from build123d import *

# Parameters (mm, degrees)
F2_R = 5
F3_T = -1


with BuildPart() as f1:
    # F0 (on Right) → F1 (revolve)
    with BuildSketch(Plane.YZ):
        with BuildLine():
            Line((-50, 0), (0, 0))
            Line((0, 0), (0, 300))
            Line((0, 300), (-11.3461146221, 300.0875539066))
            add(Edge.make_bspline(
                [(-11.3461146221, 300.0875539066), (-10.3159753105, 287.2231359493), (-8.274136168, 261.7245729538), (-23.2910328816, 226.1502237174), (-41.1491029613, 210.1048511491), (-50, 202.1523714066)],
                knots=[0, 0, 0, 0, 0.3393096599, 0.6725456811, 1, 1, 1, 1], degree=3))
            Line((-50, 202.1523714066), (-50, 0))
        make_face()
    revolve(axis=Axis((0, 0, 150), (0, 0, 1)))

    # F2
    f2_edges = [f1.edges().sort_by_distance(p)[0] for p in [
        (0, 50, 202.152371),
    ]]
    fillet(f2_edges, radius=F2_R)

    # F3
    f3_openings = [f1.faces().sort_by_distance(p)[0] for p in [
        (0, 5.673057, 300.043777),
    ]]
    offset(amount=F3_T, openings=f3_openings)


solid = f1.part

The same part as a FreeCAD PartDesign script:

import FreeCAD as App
import Part
import Sketcher
Q = App.Units.Quantity


def edges_at(feature, points):
    """Names of the edges that pass closest to the given points."""
    edges = feature.Shape.Edges
    near = lambda p: min(range(len(edges)), key=lambda i: edges[i].distToShape(Part.Vertex(*p))[0])
    return sorted({f"Edge{near(p) + 1}" for p in points})


def faces_at(feature, points):
    """Names of the faces that lie closest to the given points."""
    faces = feature.Shape.Faces
    near = lambda p: min(range(len(faces)), key=lambda i: faces[i].distToShape(Part.Vertex(*p))[0])
    return sorted({f"Face{near(p) + 1}" for p in points})

doc = App.newDocument("Part")
body = doc.addObject("PartDesign::Body", "Body")

# Sketch on YZ plane
sketch1 = body.newObject("Sketcher::SketchObject", "Sketch")
sketch1.AttachmentSupport = (doc.getObject("YZ_Plane"), [""])
sketch1.MapMode = "FlatFace"
sketch1.addGeometry(Part.LineSegment(App.Vector(-50, 0, 0), App.Vector(0, 0, 0)), False)
sketch1.addGeometry(Part.LineSegment(App.Vector(0, 0, 0), App.Vector(0, 300, 0)), False)
sketch1.addGeometry(Part.LineSegment(App.Vector(0, 300, 0), App.Vector(-11.346115, 300.087554, 0)), False)
sketch1.addGeometry(Part.BSplineCurve([App.Vector(-11.346115, 300.087554, 0), App.Vector(-10.315975, 287.223136, 0), App.Vector(-8.274136, 261.724573, 0), App.Vector(-23.291033, 226.150224, 0), App.Vector(-41.149103, 210.104851, 0), App.Vector(-50, 202.152371, 0)], [4, 1, 1, 4], [0, 0.33930966, 0.672545681, 1], False, 3, [1, 1, 1, 1, 1, 1], False), False)
sketch1.addGeometry(Part.LineSegment(App.Vector(-50, 202.152371, 0), App.Vector(-50, 0, 0)), False)
sketch1.addConstraint(Sketcher.Constraint("Block", 3))
sketch1.addConstraint(Sketcher.Constraint("Coincident", 0, 2, 1, 1))
sketch1.addConstraint(Sketcher.Constraint("Coincident", 1, 2, 2, 1))
sketch1.addConstraint(Sketcher.Constraint("Coincident", 2, 2, 3, 1))
sketch1.addConstraint(Sketcher.Constraint("Coincident", 3, 2, 4, 1))
sketch1.addConstraint(Sketcher.Constraint("Coincident", 4, 2, 0, 1))
sketch1.addConstraint(Sketcher.Constraint("Horizontal", 0))
sketch1.addConstraint(Sketcher.Constraint("Vertical", 1))
sketch1.addConstraint(Sketcher.Constraint("Vertical", 4))
sketch1.addConstraint(Sketcher.Constraint("Coincident", 0, 2, -1, 1))
sketch1.addConstraint(Sketcher.Constraint("DistanceY", 1, 1, 1, 2, Q("300 mm")))
revolution = body.newObject("PartDesign::Revolution", "Revolution")
revolution.Profile = sketch1
revolution.ReferenceAxis = (sketch1, ["V_Axis"])
revolution.Angle = 360
doc.recompute()

fillet = body.newObject("PartDesign::Fillet", "Fillet")
fillet.Base = (revolution, edges_at(revolution, [(0, 50, 202.152)]))
fillet.Radius = 5
doc.recompute()

thickness = body.newObject("PartDesign::Thickness", "Thickness")
thickness.Base = (fillet, faces_at(fillet, [(0, 5.673, 300.044)]))
thickness.Value = 1
thickness.Reversed = True
thickness.Join = "Arc"

doc.recompute()
